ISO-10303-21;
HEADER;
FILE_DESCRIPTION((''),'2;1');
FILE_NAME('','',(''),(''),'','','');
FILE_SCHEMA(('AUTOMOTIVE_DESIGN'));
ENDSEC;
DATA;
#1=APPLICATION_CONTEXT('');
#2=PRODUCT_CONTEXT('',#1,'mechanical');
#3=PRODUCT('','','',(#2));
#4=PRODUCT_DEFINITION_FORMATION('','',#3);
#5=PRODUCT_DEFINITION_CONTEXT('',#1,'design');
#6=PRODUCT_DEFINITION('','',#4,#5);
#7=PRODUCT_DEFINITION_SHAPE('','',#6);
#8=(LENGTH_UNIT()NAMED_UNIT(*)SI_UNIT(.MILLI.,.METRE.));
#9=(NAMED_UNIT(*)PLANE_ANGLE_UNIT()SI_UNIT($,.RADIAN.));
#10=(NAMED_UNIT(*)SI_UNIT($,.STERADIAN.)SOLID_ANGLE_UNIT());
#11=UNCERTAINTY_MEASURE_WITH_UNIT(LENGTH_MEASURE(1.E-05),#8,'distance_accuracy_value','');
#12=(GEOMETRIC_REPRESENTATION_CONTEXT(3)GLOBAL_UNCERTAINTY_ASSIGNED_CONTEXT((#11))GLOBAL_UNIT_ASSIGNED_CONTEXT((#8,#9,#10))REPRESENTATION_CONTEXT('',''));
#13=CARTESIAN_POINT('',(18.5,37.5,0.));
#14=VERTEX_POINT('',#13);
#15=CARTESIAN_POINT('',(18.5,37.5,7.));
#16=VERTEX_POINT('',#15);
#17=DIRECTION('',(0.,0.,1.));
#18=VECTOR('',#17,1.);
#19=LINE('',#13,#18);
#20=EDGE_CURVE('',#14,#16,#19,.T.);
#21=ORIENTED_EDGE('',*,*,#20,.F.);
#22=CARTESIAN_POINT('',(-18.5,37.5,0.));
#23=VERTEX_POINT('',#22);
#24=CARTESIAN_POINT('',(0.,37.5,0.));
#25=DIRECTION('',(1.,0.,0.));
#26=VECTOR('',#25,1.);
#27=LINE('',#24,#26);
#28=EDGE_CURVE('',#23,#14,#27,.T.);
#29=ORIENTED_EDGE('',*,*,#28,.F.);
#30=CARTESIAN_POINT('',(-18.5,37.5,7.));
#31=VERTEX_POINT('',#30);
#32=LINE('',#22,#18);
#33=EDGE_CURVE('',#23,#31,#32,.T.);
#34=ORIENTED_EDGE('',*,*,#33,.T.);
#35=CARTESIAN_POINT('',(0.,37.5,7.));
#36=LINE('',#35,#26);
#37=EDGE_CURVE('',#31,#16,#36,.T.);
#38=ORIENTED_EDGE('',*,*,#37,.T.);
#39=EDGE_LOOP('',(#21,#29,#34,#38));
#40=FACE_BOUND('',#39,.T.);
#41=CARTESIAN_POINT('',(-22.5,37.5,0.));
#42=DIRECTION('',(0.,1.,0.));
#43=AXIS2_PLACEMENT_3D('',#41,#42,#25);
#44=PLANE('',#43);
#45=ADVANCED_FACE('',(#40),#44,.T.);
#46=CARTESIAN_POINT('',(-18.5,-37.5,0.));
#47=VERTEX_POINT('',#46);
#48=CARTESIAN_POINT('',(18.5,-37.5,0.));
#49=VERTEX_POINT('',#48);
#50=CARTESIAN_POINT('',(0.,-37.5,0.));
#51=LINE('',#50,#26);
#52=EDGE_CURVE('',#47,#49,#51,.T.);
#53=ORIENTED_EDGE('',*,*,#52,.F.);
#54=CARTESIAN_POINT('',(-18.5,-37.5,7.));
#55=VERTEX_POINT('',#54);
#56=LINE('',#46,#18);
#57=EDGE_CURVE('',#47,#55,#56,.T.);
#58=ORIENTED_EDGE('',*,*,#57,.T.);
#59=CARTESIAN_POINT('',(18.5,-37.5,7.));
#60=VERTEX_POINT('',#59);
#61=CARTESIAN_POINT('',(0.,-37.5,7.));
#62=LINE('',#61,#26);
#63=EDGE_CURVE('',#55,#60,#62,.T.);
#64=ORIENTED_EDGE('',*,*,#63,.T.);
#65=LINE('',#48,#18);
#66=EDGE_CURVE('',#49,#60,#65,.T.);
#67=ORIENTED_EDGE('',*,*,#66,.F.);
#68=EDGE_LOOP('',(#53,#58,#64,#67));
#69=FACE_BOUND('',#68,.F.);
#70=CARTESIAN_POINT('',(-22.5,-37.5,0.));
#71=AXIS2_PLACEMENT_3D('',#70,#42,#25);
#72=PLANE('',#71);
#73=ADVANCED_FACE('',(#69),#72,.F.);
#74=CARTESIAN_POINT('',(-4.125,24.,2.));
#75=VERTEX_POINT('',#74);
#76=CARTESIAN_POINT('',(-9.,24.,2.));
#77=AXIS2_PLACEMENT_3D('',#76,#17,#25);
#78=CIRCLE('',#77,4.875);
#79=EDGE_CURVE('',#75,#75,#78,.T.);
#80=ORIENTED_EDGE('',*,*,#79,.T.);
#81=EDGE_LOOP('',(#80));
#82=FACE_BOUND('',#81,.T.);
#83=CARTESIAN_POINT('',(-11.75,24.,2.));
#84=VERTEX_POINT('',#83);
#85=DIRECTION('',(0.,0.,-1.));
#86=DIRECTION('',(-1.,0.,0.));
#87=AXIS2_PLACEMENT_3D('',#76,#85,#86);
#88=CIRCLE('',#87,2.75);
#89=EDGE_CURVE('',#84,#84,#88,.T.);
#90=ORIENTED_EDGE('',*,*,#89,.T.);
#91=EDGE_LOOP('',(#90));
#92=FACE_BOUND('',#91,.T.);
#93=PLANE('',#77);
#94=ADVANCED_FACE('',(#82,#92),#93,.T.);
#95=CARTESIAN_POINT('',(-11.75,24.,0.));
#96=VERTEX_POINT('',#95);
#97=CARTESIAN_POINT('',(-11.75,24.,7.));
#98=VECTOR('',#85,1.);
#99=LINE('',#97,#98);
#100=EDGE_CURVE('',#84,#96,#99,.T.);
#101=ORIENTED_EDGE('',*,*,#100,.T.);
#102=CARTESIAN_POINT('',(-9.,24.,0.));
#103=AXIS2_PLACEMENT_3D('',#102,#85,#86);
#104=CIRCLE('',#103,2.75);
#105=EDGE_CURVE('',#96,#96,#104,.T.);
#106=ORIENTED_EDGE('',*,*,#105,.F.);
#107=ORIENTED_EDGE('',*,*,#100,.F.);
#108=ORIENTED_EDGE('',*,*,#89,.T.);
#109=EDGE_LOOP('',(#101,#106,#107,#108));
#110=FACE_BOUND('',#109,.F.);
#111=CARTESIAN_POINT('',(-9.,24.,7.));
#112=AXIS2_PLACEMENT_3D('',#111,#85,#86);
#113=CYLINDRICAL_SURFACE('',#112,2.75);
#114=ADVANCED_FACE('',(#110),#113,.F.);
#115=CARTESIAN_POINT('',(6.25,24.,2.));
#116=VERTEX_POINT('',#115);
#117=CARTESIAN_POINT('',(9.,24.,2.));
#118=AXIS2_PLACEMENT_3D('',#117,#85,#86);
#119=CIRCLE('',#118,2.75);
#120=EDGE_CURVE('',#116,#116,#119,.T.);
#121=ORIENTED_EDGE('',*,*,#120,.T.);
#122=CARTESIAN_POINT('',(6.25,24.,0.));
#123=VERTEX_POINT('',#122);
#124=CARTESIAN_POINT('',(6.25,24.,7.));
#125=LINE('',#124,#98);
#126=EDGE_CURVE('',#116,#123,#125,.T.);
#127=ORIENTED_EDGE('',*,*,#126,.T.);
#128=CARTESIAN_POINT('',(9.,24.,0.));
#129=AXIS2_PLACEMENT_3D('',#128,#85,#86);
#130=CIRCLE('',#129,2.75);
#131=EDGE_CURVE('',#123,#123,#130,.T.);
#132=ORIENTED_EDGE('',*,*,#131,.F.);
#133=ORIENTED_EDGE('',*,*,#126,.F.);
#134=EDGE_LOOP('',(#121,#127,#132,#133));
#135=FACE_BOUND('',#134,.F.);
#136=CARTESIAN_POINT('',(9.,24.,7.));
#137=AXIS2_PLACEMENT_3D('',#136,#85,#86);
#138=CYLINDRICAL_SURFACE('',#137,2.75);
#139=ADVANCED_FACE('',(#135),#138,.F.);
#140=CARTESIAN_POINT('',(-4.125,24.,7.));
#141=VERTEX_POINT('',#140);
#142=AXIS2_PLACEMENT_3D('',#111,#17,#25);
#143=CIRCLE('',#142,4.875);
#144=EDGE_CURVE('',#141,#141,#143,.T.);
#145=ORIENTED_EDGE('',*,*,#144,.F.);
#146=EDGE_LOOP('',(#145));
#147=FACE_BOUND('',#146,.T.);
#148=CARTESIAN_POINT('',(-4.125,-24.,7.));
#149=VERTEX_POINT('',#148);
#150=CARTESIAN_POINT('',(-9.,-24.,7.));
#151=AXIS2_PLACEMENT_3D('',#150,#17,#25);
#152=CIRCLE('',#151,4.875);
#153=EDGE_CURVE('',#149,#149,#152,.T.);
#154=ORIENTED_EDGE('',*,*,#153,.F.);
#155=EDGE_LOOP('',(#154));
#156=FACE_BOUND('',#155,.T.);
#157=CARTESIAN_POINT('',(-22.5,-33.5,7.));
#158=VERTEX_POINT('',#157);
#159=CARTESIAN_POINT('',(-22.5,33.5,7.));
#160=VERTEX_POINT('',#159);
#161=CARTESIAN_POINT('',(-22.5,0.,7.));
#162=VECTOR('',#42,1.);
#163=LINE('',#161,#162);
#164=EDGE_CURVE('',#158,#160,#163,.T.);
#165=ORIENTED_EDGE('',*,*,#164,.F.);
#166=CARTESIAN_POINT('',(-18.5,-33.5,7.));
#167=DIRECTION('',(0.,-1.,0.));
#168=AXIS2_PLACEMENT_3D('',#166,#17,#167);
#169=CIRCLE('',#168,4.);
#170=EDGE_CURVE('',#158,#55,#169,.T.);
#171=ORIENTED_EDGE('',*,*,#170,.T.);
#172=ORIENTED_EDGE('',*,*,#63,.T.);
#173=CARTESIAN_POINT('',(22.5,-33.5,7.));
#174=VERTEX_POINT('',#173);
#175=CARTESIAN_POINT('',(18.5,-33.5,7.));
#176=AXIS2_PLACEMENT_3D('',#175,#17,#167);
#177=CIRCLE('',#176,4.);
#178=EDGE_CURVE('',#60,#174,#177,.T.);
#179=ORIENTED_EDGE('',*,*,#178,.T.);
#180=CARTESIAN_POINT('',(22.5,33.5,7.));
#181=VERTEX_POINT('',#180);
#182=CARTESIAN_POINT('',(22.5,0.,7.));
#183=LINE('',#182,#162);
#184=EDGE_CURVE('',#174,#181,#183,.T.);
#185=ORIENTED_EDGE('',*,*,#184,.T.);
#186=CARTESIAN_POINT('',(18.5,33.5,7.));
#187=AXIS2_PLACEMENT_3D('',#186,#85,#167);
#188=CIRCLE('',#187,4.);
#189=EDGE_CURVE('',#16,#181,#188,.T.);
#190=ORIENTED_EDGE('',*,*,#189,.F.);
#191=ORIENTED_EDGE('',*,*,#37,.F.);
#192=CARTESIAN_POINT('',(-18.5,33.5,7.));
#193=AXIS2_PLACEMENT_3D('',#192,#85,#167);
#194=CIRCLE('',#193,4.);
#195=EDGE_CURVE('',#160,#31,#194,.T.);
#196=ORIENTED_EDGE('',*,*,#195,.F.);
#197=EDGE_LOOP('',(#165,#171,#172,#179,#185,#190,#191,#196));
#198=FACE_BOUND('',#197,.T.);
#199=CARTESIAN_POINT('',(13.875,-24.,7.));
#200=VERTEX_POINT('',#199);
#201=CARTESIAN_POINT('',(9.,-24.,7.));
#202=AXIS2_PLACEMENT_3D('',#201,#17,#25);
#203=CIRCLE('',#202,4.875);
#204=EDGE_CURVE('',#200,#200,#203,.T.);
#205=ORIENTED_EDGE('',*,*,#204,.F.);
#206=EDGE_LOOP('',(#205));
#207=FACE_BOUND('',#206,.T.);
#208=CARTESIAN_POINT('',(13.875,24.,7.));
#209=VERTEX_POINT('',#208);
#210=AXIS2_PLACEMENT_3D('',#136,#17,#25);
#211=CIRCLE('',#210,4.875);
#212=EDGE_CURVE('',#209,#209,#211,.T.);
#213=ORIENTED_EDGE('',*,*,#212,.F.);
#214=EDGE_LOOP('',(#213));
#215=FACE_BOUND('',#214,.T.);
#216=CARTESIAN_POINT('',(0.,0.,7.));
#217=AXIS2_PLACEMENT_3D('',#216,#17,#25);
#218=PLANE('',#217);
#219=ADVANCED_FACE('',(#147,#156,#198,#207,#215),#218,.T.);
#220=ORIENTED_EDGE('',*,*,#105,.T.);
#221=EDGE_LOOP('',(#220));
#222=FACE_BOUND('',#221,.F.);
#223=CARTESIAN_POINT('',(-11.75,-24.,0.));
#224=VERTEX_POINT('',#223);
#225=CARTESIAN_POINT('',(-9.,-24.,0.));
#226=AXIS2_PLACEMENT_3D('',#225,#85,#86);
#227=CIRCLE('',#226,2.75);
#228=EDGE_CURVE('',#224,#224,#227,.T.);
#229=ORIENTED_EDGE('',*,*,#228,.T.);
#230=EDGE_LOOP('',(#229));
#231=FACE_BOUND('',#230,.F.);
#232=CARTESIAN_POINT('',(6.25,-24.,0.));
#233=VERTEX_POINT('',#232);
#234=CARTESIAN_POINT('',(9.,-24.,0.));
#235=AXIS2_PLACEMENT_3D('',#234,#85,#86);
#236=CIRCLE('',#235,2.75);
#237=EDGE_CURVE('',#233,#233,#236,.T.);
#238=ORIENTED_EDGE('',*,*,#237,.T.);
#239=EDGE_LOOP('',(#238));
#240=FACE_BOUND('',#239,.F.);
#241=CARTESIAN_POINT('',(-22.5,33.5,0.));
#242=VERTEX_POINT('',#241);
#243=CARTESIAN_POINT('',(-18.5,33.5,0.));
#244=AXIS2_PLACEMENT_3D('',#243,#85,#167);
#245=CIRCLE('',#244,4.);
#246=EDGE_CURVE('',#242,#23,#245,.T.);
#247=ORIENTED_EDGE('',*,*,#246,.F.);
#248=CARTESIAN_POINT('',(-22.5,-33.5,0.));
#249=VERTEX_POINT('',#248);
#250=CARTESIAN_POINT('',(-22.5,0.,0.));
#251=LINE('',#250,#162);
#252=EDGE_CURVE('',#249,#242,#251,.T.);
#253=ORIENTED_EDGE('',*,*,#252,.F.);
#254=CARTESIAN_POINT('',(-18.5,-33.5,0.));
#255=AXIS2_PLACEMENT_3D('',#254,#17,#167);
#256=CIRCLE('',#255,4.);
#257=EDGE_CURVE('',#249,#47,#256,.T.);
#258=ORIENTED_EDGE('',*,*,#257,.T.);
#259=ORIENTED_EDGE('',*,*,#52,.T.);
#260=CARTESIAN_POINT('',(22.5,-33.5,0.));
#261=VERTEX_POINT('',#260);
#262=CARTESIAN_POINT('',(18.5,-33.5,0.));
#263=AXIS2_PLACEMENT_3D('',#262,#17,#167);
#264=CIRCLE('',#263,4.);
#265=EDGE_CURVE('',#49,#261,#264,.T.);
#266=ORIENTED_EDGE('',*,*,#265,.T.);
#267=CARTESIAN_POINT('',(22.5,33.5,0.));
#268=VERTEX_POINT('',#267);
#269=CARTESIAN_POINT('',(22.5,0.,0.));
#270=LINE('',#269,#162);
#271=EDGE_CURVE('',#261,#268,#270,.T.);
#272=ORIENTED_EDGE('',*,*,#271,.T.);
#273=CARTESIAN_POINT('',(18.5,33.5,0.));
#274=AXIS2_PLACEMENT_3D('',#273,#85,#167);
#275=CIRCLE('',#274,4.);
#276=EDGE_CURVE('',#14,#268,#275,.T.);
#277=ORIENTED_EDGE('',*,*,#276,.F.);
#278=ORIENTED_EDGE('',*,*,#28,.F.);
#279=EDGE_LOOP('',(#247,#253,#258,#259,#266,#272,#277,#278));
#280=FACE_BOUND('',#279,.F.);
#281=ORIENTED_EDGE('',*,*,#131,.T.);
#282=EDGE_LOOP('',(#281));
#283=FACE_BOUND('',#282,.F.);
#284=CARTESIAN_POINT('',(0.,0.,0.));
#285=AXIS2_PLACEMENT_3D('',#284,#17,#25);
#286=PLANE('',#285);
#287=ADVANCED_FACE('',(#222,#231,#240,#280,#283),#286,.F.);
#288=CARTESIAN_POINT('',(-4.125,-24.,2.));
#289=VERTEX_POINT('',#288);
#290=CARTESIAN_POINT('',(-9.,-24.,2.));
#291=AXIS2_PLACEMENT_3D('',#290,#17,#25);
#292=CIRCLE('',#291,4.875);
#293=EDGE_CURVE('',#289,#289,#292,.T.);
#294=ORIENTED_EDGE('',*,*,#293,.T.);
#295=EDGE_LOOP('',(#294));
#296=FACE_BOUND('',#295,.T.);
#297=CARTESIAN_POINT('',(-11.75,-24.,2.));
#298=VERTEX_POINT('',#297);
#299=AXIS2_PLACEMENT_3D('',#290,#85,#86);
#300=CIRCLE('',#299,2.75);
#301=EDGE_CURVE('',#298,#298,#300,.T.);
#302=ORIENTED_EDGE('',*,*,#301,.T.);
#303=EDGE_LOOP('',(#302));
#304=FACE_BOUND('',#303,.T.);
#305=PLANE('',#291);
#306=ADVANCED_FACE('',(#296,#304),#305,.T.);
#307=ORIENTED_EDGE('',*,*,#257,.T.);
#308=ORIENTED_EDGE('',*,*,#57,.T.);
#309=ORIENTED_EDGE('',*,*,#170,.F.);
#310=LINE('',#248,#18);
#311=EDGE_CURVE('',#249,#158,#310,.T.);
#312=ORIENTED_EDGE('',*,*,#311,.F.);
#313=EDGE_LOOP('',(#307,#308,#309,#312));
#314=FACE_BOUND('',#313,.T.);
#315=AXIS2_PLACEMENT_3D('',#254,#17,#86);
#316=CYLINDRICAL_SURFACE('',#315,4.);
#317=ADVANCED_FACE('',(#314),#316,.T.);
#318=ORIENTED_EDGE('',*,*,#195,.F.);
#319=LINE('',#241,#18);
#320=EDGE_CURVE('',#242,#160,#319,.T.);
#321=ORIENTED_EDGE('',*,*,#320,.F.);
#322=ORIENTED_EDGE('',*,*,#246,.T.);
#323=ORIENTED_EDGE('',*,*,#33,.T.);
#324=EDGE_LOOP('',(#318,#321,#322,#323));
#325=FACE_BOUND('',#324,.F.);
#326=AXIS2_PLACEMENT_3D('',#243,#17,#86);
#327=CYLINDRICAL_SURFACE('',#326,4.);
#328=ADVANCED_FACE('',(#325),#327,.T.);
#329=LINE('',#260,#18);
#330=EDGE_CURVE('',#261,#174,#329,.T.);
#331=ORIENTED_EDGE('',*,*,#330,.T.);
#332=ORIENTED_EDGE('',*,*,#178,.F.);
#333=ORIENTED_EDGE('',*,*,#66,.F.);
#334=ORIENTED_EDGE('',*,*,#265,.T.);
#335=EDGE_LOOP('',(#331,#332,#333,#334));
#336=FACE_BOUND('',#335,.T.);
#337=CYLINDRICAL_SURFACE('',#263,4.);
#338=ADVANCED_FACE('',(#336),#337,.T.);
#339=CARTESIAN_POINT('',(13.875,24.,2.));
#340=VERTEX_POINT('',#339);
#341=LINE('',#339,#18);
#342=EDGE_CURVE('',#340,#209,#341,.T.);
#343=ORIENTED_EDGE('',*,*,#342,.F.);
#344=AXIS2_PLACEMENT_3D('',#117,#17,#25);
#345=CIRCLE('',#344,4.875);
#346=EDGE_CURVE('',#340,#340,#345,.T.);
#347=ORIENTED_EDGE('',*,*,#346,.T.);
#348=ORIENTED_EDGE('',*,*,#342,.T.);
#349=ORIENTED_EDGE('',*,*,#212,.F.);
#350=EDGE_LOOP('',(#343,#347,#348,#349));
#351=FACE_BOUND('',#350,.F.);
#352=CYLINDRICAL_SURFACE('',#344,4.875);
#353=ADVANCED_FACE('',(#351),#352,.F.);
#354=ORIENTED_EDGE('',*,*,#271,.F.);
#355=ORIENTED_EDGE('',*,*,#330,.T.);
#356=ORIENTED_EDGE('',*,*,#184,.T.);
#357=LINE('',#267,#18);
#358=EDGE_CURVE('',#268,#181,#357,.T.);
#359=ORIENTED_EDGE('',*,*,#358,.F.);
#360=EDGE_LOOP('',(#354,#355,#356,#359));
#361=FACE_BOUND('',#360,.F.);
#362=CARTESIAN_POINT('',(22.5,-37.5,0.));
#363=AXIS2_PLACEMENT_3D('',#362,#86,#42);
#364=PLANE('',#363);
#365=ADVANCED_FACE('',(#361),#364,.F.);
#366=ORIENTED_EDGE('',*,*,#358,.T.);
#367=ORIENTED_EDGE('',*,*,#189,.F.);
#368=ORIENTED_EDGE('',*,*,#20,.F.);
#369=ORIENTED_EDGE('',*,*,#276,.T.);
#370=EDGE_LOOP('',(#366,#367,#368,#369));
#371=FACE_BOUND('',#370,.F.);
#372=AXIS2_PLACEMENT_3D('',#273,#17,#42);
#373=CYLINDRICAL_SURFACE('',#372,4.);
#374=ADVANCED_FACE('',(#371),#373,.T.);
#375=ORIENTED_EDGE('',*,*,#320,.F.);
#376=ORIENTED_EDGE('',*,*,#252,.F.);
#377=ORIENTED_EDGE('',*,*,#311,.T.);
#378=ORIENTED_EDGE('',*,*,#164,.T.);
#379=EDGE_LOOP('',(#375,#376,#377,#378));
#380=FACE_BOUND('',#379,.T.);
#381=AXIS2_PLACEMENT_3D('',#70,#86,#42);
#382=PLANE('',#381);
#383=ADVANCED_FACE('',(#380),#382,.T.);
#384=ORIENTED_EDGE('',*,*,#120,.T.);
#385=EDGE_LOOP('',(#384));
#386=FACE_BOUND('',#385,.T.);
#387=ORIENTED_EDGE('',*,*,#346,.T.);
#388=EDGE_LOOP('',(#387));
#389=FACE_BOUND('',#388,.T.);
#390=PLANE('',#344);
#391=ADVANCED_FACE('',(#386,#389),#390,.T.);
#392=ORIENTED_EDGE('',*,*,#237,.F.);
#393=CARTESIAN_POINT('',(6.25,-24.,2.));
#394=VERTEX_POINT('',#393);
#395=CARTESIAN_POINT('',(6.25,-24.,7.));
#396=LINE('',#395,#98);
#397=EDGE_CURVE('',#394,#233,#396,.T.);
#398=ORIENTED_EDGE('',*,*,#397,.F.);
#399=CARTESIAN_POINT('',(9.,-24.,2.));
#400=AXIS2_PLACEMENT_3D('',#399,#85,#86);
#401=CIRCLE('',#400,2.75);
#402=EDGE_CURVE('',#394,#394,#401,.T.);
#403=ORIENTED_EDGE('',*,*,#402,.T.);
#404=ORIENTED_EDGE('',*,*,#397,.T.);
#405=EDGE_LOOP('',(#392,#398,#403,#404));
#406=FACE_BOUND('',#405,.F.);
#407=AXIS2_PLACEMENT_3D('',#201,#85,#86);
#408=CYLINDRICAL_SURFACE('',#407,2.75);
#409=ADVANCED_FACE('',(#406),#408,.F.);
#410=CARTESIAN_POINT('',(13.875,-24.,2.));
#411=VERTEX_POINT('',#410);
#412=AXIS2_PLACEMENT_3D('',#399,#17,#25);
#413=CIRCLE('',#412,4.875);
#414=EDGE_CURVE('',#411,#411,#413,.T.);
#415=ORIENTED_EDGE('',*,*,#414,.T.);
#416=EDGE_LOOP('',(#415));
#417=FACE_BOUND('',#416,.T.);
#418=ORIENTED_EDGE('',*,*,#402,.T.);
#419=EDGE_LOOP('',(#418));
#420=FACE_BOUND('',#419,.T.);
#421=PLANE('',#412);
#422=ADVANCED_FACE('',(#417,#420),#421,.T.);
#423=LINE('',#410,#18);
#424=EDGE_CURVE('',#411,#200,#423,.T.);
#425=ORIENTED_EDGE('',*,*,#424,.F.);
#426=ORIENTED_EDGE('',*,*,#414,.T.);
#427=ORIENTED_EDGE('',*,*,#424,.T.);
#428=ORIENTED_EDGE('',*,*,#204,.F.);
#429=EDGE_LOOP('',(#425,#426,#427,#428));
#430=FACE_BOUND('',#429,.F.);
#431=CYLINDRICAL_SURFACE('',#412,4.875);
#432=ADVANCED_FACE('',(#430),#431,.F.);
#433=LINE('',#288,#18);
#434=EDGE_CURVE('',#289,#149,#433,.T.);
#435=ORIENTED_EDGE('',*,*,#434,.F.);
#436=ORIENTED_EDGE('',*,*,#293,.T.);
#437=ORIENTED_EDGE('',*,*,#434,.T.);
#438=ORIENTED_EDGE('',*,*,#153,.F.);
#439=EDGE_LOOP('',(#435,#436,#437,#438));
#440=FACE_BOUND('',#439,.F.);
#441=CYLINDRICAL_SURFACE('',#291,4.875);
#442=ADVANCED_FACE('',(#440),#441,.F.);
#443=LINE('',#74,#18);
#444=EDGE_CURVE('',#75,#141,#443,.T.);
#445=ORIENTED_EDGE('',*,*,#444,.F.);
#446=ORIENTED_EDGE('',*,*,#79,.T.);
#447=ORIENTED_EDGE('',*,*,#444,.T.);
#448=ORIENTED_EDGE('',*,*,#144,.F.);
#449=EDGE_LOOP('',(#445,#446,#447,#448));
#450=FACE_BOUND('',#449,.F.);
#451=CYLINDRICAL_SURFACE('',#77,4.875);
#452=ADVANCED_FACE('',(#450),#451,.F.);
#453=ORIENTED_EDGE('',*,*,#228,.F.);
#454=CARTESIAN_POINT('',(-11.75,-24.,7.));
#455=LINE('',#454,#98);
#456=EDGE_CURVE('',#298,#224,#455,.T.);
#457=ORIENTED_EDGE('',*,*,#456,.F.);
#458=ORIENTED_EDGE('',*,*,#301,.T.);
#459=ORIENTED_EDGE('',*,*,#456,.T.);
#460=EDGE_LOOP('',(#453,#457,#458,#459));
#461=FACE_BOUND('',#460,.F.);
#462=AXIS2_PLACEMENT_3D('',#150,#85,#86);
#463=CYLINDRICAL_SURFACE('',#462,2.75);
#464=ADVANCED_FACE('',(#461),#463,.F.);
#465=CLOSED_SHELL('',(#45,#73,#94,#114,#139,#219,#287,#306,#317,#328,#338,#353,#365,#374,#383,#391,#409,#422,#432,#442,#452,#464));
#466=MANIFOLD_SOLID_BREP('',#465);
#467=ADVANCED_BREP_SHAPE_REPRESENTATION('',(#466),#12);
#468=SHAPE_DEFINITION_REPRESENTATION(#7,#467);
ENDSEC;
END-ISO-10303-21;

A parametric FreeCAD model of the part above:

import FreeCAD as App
import Part
import Sketcher
from FreeCAD import Vector


def edges_at(feature, points):
    """Names of the edges that pass closest to the given points."""
    edges = feature.Shape.Edges
    near = lambda p: min(range(len(edges)), key=lambda i: edges[i].distToShape(Part.Vertex(*p))[0])
    return sorted({f"Edge{near(p) + 1}" for p in points})

doc = App.newDocument("Part")
body = doc.addObject("PartDesign::Body", "Body")

# Sketch on XY plane
sketch1 = body.newObject("Sketcher::SketchObject", "Sketch")
sketch1.AttachmentSupport = (doc.getObject("XY_Plane"), [""])
sketch1.MapMode = "FlatFace"
sketch1.addGeometry(Part.LineSegment(Vector(-22.5, 37.5, 0), Vector(-22.5, -37.5, 0)), False)
sketch1.addGeometry(Part.LineSegment(Vector(-22.5, -37.5, 0), Vector(22.5, -37.5, 0)), False)
sketch1.addGeometry(Part.LineSegment(Vector(22.5, -37.5, 0), Vector(22.5, 37.5, 0)), False)
sketch1.addGeometry(Part.LineSegment(Vector(22.5, 37.5, 0), Vector(-22.5, 37.5, 0)), False)
sketch1.addConstraint(Sketcher.Constraint("Coincident", 0, 2, 1, 1))
sketch1.addConstraint(Sketcher.Constraint("Coincident", 1, 2, 2, 1))
sketch1.addConstraint(Sketcher.Constraint("Coincident", 2, 2, 3, 1))
sketch1.addConstraint(Sketcher.Constraint("Coincident", 3, 2, 0, 1))
sketch1.addConstraint(Sketcher.Constraint("Vertical", 0))
sketch1.addConstraint(Sketcher.Constraint("Horizontal", 1))
sketch1.addConstraint(Sketcher.Constraint("Vertical", 2))
sketch1.addConstraint(Sketcher.Constraint("Horizontal", 3))
sketch1.addConstraint(Sketcher.Constraint("Symmetric", 0, 2, 2, 2, -1, 1))
sketch1.addConstraint(Sketcher.Constraint("DistanceX", 1, 1, 1, 2, 45.0))
sketch1.addConstraint(Sketcher.Constraint("DistanceY", 0, 2, 0, 1, 75.0))
pad1 = body.newObject("PartDesign::Pad", "Pad")
pad1.Profile = sketch1
pad1.Length = 7

# Sketch on XY plane
sketch2 = body.newObject("Sketcher::SketchObject", "Sketch001")
sketch2.AttachmentSupport = (doc.getObject("XY_Plane"), [""])
sketch2.MapMode = "FlatFace"
sketch2.AttachmentOffset = App.Placement(Vector(0, 0, 7), App.Rotation())
sketch2.addGeometry(Part.Circle(Vector(-9, -24, 0), Vector(0, 0, 1), 2.75), False)
sketch2.addGeometry(Part.Circle(Vector(9, -24, 0), Vector(0, 0, 1), 2.75), False)
sketch2.addGeometry(Part.Circle(Vector(9, 24, 0), Vector(0, 0, 1), 2.75), False)
sketch2.addGeometry(Part.Circle(Vector(-9, 24, 0), Vector(0, 0, 1), 2.75), False)
sketch2.addConstraint(Sketcher.Constraint("Equal", 0, 1))
sketch2.addConstraint(Sketcher.Constraint("Equal", 1, 2))
sketch2.addConstraint(Sketcher.Constraint("Equal", 2, 3))
sketch2.addConstraint(Sketcher.Constraint("Symmetric", 0, 3, 2, 3, -1, 1))
sketch2.addConstraint(Sketcher.Constraint("Symmetric", 1, 3, 3, 3, -1, 1))
sketch2.addConstraint(Sketcher.Constraint("Symmetric", 0, 3, 1, 3, -2))
sketch2.addConstraint(Sketcher.Constraint("Diameter", 0, 5.5))
sketch2.addConstraint(Sketcher.Constraint("DistanceX", 0, 3, -1, 1, 9.0))
sketch2.addConstraint(Sketcher.Constraint("DistanceY", 0, 3, -1, 1, 24.0))
doc.recompute()
hole = body.newObject("PartDesign::Hole", "Hole")
hole.Profile = sketch2
hole.ThreadType = "None"
hole.Diameter = 5.5
hole.DepthType = "ThroughAll"
hole.HoleCutType = "Counterbore"
hole.HoleCutDiameter = 9.75
hole.HoleCutDepth = 5
doc.recompute()

fillet = body.newObject("PartDesign::Fillet", "Fillet")
fillet.Base = (hole, edges_at(hole, [
    (22.5, -37.5, 3.5),
    (-22.5, -37.5, 3.5),
    (22.5, 37.5, 3.5),
    (-22.5, 37.5, 3.5),
]))
fillet.Radius = 4

doc.recompute()
